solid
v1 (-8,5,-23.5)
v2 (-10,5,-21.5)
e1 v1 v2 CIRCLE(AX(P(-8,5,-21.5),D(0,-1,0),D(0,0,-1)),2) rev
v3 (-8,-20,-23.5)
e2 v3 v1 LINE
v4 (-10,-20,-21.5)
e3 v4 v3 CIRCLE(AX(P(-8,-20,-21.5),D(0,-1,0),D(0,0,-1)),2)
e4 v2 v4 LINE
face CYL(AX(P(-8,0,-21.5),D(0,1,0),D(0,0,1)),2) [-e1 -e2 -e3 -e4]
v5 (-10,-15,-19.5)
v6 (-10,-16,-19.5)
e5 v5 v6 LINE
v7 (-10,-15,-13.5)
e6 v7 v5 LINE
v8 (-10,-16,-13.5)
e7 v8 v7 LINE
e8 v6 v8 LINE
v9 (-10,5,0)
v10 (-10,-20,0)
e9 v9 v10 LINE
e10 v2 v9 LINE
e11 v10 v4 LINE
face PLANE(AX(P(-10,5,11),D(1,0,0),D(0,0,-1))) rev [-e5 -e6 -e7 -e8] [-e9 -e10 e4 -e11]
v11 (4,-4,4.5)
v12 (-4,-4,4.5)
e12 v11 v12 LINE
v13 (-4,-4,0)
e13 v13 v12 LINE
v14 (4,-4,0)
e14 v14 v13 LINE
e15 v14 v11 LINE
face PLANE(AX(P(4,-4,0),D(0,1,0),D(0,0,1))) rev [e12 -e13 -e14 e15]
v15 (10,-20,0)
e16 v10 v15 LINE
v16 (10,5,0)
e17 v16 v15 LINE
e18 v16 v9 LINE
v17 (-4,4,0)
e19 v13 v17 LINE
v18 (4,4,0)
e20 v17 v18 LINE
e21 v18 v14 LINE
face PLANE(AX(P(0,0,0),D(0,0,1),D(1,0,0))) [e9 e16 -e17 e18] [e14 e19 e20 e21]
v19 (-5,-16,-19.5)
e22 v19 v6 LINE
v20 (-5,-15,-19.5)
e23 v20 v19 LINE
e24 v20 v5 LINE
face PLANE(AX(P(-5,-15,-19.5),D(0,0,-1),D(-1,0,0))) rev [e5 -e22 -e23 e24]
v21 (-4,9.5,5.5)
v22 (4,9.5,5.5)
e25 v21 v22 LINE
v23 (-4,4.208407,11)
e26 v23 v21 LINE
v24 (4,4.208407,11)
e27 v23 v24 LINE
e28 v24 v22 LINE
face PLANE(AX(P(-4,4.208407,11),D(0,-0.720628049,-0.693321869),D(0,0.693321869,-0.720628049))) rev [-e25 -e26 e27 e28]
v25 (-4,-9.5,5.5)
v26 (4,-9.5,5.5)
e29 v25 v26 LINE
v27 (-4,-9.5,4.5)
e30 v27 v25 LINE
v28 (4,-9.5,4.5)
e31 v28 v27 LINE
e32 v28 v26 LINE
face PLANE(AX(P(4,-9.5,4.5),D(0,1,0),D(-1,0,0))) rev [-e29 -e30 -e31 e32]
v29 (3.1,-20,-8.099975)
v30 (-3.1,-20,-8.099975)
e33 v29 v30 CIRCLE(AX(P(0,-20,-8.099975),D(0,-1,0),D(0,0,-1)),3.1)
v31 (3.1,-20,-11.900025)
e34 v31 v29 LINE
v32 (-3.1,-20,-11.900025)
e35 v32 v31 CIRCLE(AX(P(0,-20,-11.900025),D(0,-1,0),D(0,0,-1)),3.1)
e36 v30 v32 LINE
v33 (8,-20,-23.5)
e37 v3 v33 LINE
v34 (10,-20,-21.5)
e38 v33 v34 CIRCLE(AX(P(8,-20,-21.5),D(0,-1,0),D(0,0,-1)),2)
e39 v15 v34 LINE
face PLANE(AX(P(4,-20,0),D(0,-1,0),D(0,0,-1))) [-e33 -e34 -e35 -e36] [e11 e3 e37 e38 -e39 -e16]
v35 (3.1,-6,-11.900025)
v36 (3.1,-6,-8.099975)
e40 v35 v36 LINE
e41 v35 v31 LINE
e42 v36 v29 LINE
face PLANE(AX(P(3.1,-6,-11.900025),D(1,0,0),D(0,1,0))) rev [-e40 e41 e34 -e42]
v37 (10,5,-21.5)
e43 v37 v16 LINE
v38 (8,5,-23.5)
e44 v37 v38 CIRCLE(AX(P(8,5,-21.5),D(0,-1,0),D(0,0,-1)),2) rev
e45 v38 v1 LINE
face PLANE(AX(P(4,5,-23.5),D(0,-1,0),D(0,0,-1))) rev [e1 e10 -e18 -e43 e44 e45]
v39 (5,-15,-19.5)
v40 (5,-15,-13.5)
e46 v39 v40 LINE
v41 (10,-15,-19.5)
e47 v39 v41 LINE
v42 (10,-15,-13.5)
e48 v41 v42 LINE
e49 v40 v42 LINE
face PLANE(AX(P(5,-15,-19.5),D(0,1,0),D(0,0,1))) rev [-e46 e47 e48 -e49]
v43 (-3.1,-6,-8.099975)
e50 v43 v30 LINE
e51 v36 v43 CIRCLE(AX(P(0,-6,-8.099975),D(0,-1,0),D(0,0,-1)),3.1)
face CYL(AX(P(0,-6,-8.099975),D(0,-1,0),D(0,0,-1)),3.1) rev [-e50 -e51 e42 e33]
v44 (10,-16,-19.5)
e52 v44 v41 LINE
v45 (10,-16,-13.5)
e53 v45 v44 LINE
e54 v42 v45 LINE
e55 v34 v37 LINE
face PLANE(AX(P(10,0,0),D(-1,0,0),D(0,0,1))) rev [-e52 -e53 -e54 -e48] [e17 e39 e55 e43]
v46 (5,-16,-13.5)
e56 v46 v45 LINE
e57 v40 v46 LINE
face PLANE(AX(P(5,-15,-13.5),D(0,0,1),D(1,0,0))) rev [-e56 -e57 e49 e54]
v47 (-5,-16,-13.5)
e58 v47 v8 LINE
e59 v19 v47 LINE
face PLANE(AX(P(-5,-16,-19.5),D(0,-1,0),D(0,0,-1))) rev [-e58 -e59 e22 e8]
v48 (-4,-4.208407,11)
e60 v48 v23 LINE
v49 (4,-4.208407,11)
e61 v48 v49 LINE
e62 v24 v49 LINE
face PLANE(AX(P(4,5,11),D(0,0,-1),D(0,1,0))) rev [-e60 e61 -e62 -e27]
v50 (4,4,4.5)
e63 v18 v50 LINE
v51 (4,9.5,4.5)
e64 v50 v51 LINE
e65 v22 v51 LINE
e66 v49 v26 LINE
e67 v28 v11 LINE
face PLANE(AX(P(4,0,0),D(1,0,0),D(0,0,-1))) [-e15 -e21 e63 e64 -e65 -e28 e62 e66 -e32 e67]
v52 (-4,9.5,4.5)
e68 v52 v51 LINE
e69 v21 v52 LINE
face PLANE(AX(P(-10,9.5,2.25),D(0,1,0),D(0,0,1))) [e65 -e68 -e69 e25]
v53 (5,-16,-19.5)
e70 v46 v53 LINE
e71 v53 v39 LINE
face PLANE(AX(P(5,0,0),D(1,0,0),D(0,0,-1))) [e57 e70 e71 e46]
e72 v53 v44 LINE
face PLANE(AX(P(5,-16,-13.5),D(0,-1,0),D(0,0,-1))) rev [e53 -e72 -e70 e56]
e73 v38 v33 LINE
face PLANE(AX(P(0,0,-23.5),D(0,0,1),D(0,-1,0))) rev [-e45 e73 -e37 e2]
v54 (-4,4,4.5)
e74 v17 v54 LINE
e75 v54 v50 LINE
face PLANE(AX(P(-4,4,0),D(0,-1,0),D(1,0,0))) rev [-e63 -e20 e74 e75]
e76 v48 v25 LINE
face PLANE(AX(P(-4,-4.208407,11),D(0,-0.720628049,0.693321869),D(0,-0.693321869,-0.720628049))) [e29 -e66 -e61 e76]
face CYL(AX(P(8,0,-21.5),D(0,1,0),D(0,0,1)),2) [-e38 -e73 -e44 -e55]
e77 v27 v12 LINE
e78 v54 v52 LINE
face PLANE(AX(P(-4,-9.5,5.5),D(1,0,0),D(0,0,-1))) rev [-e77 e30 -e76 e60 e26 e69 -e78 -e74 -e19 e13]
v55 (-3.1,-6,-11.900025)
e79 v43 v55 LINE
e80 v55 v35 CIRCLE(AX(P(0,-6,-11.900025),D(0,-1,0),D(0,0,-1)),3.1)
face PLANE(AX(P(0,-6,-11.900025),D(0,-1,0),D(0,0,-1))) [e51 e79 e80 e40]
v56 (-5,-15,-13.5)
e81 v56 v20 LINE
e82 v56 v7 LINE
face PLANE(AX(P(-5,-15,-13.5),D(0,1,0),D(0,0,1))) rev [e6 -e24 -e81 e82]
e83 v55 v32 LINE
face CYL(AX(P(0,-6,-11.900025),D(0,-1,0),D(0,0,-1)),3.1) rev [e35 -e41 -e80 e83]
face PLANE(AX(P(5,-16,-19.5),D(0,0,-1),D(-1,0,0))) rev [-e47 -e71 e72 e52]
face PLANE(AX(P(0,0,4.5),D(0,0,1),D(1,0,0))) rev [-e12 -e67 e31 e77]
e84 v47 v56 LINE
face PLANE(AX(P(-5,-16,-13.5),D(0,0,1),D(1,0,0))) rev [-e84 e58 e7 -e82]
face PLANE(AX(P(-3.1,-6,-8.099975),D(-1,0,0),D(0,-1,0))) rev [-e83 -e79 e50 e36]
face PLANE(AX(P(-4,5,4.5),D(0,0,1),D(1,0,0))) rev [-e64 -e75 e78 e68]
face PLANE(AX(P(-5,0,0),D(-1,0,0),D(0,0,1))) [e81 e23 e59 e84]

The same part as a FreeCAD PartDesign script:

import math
import FreeCAD as App
import Part
import Sketcher
from FreeCAD import Vector


def edges_at(feature, points):
    """Names of the edges that pass closest to the given points."""
    edges = feature.Shape.Edges
    near = lambda p: min(range(len(edges)), key=lambda i: edges[i].distToShape(Part.Vertex(*p))[0])
    return sorted({f"Edge{near(p) + 1}" for p in points})


def add_polygon(sketch, points):
    """Adds a closed chain of lines whose ends are joined by coincident constraints."""
    first, n = sketch.GeometryCount, len(points)
    for a, b in zip(points, points[1:] + points[:1]):
        sketch.addGeometry(Part.LineSegment(App.Vector(*a, 0), App.Vector(*b, 0)), False)
    for i in range(n):
        sketch.addConstraint(Sketcher.Constraint("Coincident", first + i, 2, first + (i + 1) % n, 1))

doc = App.newDocument("Part")
params = doc.addObject("Spreadsheet::Sheet", "Params")
for row, (alias, value) in enumerate([
    ("sketch1_height", "5.5 mm"),
    ("pad1_length", "8 mm"),
    ("sketch2_width", "14 mm"),
    ("sketch2_height", "5.5 mm"),
    ("pad2_length", "9.208407 mm"),
    ("sketch3_width", "6 mm"),
    ("sketch3_height", "5.5 mm"),
    ("pad3_length", "5.291593 mm"),
    ("sketch4_width", "14 mm"),
    ("sketch4_height", "14.5 mm"),
    ("pad4_length", "5.5 mm"),
    ("pad5_length", "4.5 mm"),
    ("sketch6_height", "5.5 mm"),
    ("pocket1_length", "8 mm"),
    ("sketch7_width", "6 mm"),
    ("sketch7_height", "19 mm"),
    ("pocket2_length", "5.5 mm"),
    ("sketch8_width", "14 mm"),
    ("sketch8_height", "19 mm"),
    ("pad6_length", "23.5 mm"),
    ("sketch9_height", "23.5 mm"),
    ("pad7_length", "10.5 mm"),
    ("sketch10_width", "6 mm"),
    ("sketch10_height", "23.5 mm"),
    ("pocket3_length", "4.5 mm"),
    ("sketch11_width", "6 mm"),
    ("sketch11_width2", "14 mm"),
    ("sketch11_height", "25 mm"),
    ("sketch11_height2", "14.5 mm"),
    ("pocket4_length", "1 mm"),
    ("sketch12_width", "14 mm"),
    ("sketch12_width2", "8 mm"),
    ("sketch12_height", "1 mm"),
    ("sketch12_height2", "25 mm"),
    ("pocket5_length", "4.5 mm"),
    ("sketch13_width", "25 mm"),
    ("sketch13_height", "23.5 mm"),
    ("pad8_length", "6 mm"),
    ("sketch14_width", "1 mm"),
    ("sketch14_height", "6 mm"),
    ("pocket6_length", "5 mm"),
    ("sketch15_radius", "3.1 mm"),
    ("pocket7_length", "14 mm"),
    ("sketch16_width", "1 mm"),
    ("sketch16_height", "6 mm"),
    ("pocket8_length", "5 mm"),
    ("fillet_radius", "2 mm"),
], start=1):
    params.set(f"A{row}", alias)
    params.set(f"B{row}", "=" + value)
    params.setAlias(f"B{row}", alias)

body = doc.addObject("PartDesign::Body", "Body")

sketch1 = body.newObject("Sketcher::SketchObject", "Sketch")
sketch1.AttachmentSupport = (doc.getObject("YZ_Plane"), [""])
sketch1.MapMode = "FlatFace"
sketch1.AttachmentOffset = App.Placement(Vector(0, 0, 4), App.Rotation())
add_polygon(sketch1, [(-9.5, 5.5), (-4.208407, 5.5), (-4.208407, 11)])
sketch1.addConstraint([
    Sketcher.Constraint("Horizontal", 0),
    Sketcher.Constraint("Vertical", 1),
    Sketcher.Constraint("DistanceY", 1, 1, 1, 2, 5.5),
    Sketcher.Constraint("DistanceY", -1, 1, 1, 2, 11.0),
    Sketcher.Constraint("DistanceX", 2, 2, -1, 1, 9.5),
    Sketcher.Constraint("Distance", 2, 7.632231),
])
sketch1.setExpression("Constraints[5]", "Params.sketch1_height")
pad1 = body.newObject("PartDesign::Pad", "Pad")
pad1.Profile = sketch1
pad1.setExpression("Length", "Params.pad1_length")
pad1.Reversed = True

sketch2 = body.newObject("Sketcher::SketchObject", "Sketch001")
sketch2.AttachmentSupport = (doc.getObject("XZ_Plane"), [""])
sketch2.MapMode = "FlatFace"
sketch2.AttachmentOffset = App.Placement(Vector(0, 0, 4.208407), App.Rotation())
add_polygon(sketch2, [(4, 11), (4, 5.5), (-10, 5.5), (-10, 11)])
sketch2.addConstraint([
    Sketcher.Constraint("Vertical", 0),
    Sketcher.Constraint("Horizontal", 1),
    Sketcher.Constraint("Vertical", 2),
    Sketcher.Constraint("Horizontal", 3),
    Sketcher.Constraint("DistanceX", 1, 2, 1, 1, 14.0),
    Sketcher.Constraint("DistanceY", 0, 2, 0, 1, 5.5),
    Sketcher.Constraint("DistanceX", -1, 1, 0, 2, 4.0),
    Sketcher.Constraint("DistanceY", -1, 1, 2, 2, 11.0),
])
sketch2.setExpression("Constraints[8]", "Params.sketch2_width")
sketch2.setExpression("Constraints[9]", "Params.sketch2_height")
pad2 = body.newObject("PartDesign::Pad", "Pad001")
pad2.Profile = sketch2
pad2.setExpression("Length", "Params.pad2_length")
pad2.Reversed = True

sketch3 = body.newObject("Sketcher::SketchObject", "Sketch002")
sketch3.AttachmentSupport = (doc.getObject("XZ_Plane"), [""])
sketch3.MapMode = "FlatFace"
sketch3.AttachmentOffset = App.Placement(Vector(0, 0, 4.208407), App.Rotation())
add_polygon(sketch3, [(-10, 11), (-10, 5.5), (-4, 5.5), (-4, 11)])
sketch3.addConstraint([
    Sketcher.Constraint("Vertical", 0),
    Sketcher.Constraint("Horizontal", 1),
    Sketcher.Constraint("Vertical", 2),
    Sketcher.Constraint("Horizontal", 3),
    Sketcher.Constraint("DistanceX", 1, 1, 1, 2, 6.0),
    Sketcher.Constraint("DistanceY", 0, 2, 0, 1, 5.5),
    Sketcher.Constraint("DistanceX", 0, 2, -1, 1, 10.0),
    Sketcher.Constraint("DistanceY", -1, 1, 2, 2, 11.0),
])
sketch3.setExpression("Constraints[8]", "Params.sketch3_width")
sketch3.setExpression("Constraints[9]", "Params.sketch3_height")
pad3 = body.newObject("PartDesign::Pad", "Pad002")
pad3.Profile = sketch3
pad3.setExpression("Length", "Params.pad3_length")

sketch4 = body.newObject("Sketcher::SketchObject", "Sketch003")
sketch4.AttachmentSupport = (doc.getObject("XY_Plane"), [""])
sketch4.MapMode = "FlatFace"
sketch4.AttachmentOffset = App.Placement(Vector(0, 0, 5.5), App.Rotation())
add_polygon(sketch4, [(4, 5), (4, -9.5), (-10, -9.5), (-10, 5)])
sketch4.addConstraint([
    Sketcher.Constraint("Vertical", 0),
    Sketcher.Constraint("Horizontal", 1),
    Sketcher.Constraint("Vertical", 2),
    Sketcher.Constraint("Horizontal", 3),
    Sketcher.Constraint("DistanceX", 1, 2, 1, 1, 14.0),
    Sketcher.Constraint("DistanceY", 0, 2, 0, 1, 14.5),
    Sketcher.Constraint("DistanceX", -1, 1, 0, 2, 4.0),
    Sketcher.Constraint("DistanceY", -1, 1, 2, 2, 5.0),
])
sketch4.setExpression("Constraints[8]", "Params.sketch4_width")
sketch4.setExpression("Constraints[9]", "Params.sketch4_height")
pad4 = body.newObject("PartDesign::Pad", "Pad003")
pad4.Profile = sketch4
pad4.setExpression("Length", "Params.pad4_length")
pad4.Reversed = True

sketch5 = body.newObject("Sketcher::SketchObject", "Sketch004")
sketch5.AttachmentSupport = (doc.getObject("XZ_Plane"), [""])
sketch5.MapMode = "FlatFace"
sketch5.AttachmentOffset = App.Placement(Vector(0, 0, -5), App.Rotation())
sketch5.addGeometry([
    Part.LineSegment(Vector(4, 0, 0), Vector(-10, 0, 0)),
    Part.BSplineCurve([Vector(-10, 11, 0), Vector(-10, 7.333333, 0), Vector(-10, 3.666667, 0), Vector(-10, 0, 0)], [4, 4], [0, 1.999999999], False, 3, [1, 1, 1, 1], False),
    Part.LineSegment(Vector(-10, 11, 0), Vector(4, 11, 0)),
    Part.LineSegment(Vector(4, 11, 0), Vector(4, 4.5, 0)),
    Part.BSplineCurve([Vector(4, 4.5, 0), Vector(4, 3, 0), Vector(4, 1.5, 0), Vector(4, 0, 0)], [4, 4], [0, 1], False, 3, [1, 1, 1, 1], False),
], False)
sketch5.addConstraint([
    Sketcher.Constraint("Block", 1),
    Sketcher.Constraint("Block", 4),
    Sketcher.Constraint("Coincident", 0, 2, 1, 2),
    Sketcher.Constraint("Coincident", 1, 1, 2, 1),
    Sketcher.Constraint("Coincident", 2, 2, 3, 1),
    Sketcher.Constraint("Coincident", 3, 2, 4, 1),
    Sketcher.Constraint("Coincident", 4, 2, 0, 1),
    Sketcher.Constraint("Horizontal", 2),
    Sketcher.Constraint("Vertical", 3),
])
pad5 = body.newObject("PartDesign::Pad", "Pad004")
pad5.Profile = sketch5
pad5.setExpression("Length", "Params.pad5_length")
pad5.Reversed = True

sketch6 = body.newObject("Sketcher::SketchObject", "Sketch005")
sketch6.AttachmentSupport = (doc.getObject("YZ_Plane"), [""])
sketch6.MapMode = "FlatFace"
sketch6.AttachmentOffset = App.Placement(Vector(0, 0, 4), App.Rotation())
add_polygon(sketch6, [(4.208407, 11), (9.5, 5.5), (9.5, 11)])
sketch6.addConstraint([
    Sketcher.Constraint("Vertical", 1),
    Sketcher.Constraint("Horizontal", 2),
    Sketcher.Constraint("DistanceY", 1, 1, 1, 2, 5.5),
    Sketcher.Constraint("DistanceY", -1, 1, 1, 2, 11.0),
    Sketcher.Constraint("DistanceX", -1, 1, 0, 2, 9.5),
    Sketcher.Constraint("Distance", 0, 7.632231),
])
sketch6.setExpression("Constraints[5]", "Params.sketch6_height")
pocket1 = body.newObject("PartDesign::Pocket", "Pocket")
pocket1.Profile = sketch6
pocket1.setExpression("Length", "Params.pocket1_length")

sketch7 = body.newObject("Sketcher::SketchObject", "Sketch006")
sketch7.AttachmentSupport = (doc.getObject("XY_Plane"), [""])
sketch7.MapMode = "FlatFace"
sketch7.AttachmentOffset = App.Placement(Vector(0, 0, 11), App.Rotation())
sketch7.addGeometry([
    Part.LineSegment(Vector(-10, -9.5, 0), Vector(-4, -9.5, 0)),
    Part.LineSegment(Vector(-4, -9.5, 0), Vector(-4, 9.5, 0)),
    Part.LineSegment(Vector(-4, 9.5, 0), Vector(-10, 9.5, 0)),
    Part.BSplineCurve([Vector(-10, 9.5, 0), Vector(-10, 8, 0), Vector(-10, 6.5, 0), Vector(-10, 5, 0)], [4, 4], [0, 1], False, 3, [1, 1, 1, 1], False),
    Part.LineSegment(Vector(-10, 5, 0), Vector(-10, -9.5, 0)),
], False)
sketch7.addConstraint([
    Sketcher.Constraint("Block", 3),
    Sketcher.Constraint("Coincident", 0, 2, 1, 1),
    Sketcher.Constraint("Coincident", 1, 2, 2, 1),
    Sketcher.Constraint("Coincident", 2, 2, 3, 1),
    Sketcher.Constraint("Coincident", 3, 2, 4, 1),
    Sketcher.Constraint("Coincident", 4, 2, 0, 1),
    Sketcher.Constraint("Horizontal", 0),
    Sketcher.Constraint("Vertical", 1),
    Sketcher.Constraint("Horizontal", 2),
    Sketcher.Constraint("Vertical", 4),
    Sketcher.Constraint("DistanceX", 0, 1, 0, 2, 6.0),
    Sketcher.Constraint("DistanceY", 1, 1, 1, 2, 19.0),
])
sketch7.setExpression("Constraints[10]", "Params.sketch7_width")
sketch7.setExpression("Constraints[11]", "Params.sketch7_height")
pocket2 = body.newObject("PartDesign::Pocket", "Pocket001")
pocket2.Profile = sketch7
pocket2.setExpression("Length", "Params.pocket2_length")

sketch8 = body.newObject("Sketcher::SketchObject", "Sketch007")
sketch8.AttachmentSupport = (doc.getObject("XY_Plane"), [""])
sketch8.MapMode = "FlatFace"
add_polygon(sketch8, [(4, 9.5), (4, -9.5), (-10, -9.5), (-10, 9.5)])
sketch8.addConstraint([
    Sketcher.Constraint("Vertical", 0),
    Sketcher.Constraint("Horizontal", 1),
    Sketcher.Constraint("Vertical", 2),
    Sketcher.Constraint("Horizontal", 3),
    Sketcher.Constraint("DistanceX", 1, 2, 1, 1, 14.0),
    Sketcher.Constraint("DistanceY", 0, 2, 0, 1, 19.0),
    Sketcher.Constraint("DistanceX", -1, 1, 0, 2, 4.0),
    Sketcher.Constraint("DistanceY", 0, 2, -1, 1, 9.5),
])
sketch8.setExpression("Constraints[8]", "Params.sketch8_width")
sketch8.setExpression("Constraints[9]", "Params.sketch8_height")
pad6 = body.newObject("PartDesign::Pad", "Pad005")
pad6.Profile = sketch8
pad6.setExpression("Length", "Params.pad6_length")
pad6.Reversed = True

sketch9 = body.newObject("Sketcher::SketchObject", "Sketch008")
sketch9.AttachmentSupport = (doc.getObject("XZ_Plane"), [""])
sketch9.MapMode = "FlatFace"
sketch9.AttachmentOffset = App.Placement(Vector(0, 0, 9.5), App.Rotation())
sketch9.addGeometry([
    Part.LineSegment(Vector(-10, -23.5, 0), Vector(4, -23.5, 0)),
    Part.LineSegment(Vector(4, -23.5, 0), Vector(4, 0, 0)),
    Part.BSplineCurve([Vector(4, 5.5, 0), Vector(4, 3.666667, 0), Vector(4, 1.833333, 0), Vector(4, 0, 0)], [4, 4], [0, 5.500000005], False, 3, [1, 1, 1, 1], False),
    Part.LineSegment(Vector(4, 5.5, 0), Vector(-10, 5.5, 0)),
    Part.BSplineCurve([Vector(-10, 5.5, 0), Vector(-10, 3.666667, 0), Vector(-10, 1.833333, 0), Vector(-10, 0, 0)], [4, 4], [0, 5.500000005], False, 3, [1, 1, 1, 1], False),
    Part.LineSegment(Vector(-10, 0, 0), Vector(-10, -23.5, 0)),
], False)
sketch9.addConstraint([
    Sketcher.Constraint("Block", 2),
    Sketcher.Constraint("Block", 4),
    Sketcher.Constraint("Coincident", 0, 2, 1, 1),
    Sketcher.Constraint("Coincident", 1, 2, 2, 2),
    Sketcher.Constraint("Coincident", 2, 1, 3, 1),
    Sketcher.Constraint("Coincident", 3, 2, 4, 1),
    Sketcher.Constraint("Coincident", 4, 2, 5, 1),
    Sketcher.Constraint("Coincident", 5, 2, 0, 1),
    Sketcher.Constraint("Horizontal", 0),
    Sketcher.Constraint("Vertical", 1),
    Sketcher.Constraint("Vertical", 5),
    Sketcher.Constraint("DistanceY", 1, 1, 1, 2, 23.5),
])
sketch9.setExpression("Constraints[11]", "Params.sketch9_height")
pad7 = body.newObject("PartDesign::Pad", "Pad006")
pad7.Profile = sketch9
pad7.setExpression("Length", "Params.pad7_length")

sketch10 = body.newObject("Sketcher::SketchObject", "Sketch009")
sketch10.AttachmentSupport = (doc.getObject("XZ_Plane"), [""])
sketch10.MapMode = "FlatFace"
sketch10.AttachmentOffset = App.Placement(Vector(0, 0, -9.5), App.Rotation())
sketch10.addGeometry([
    Part.LineSegment(Vector(-10, -23.5, 0), Vector(-10, 0, 0)),
    Part.BSplineCurve([Vector(-10, 5.5, 0), Vector(-10, 3.666667, 0), Vector(-10, 1.833333, 0), Vector(-10, 0, 0)], [4, 4], [0, 5.500000005], False, 3, [1, 1, 1, 1], False),
    Part.LineSegment(Vector(-10, 5.5, 0), Vector(-4, 5.5, 0)),
    Part.LineSegment(Vector(-4, 5.5, 0), Vector(-4, 4.5, 0)),
    Part.LineSegment(Vector(-4, 4.5, 0), Vector(4, 4.5, 0)),
    Part.BSplineCurve([Vector(4, 4.5, 0), Vector(4, 3, 0), Vector(4, 1.5, 0), Vector(4, 0, 0)], [4, 4], [0, 1], False, 3, [1, 1, 1, 1], False),
    Part.LineSegment(Vector(4, 0, 0), Vector(4, -23.5, 0)),
    Part.LineSegment(Vector(4, -23.5, 0), Vector(-10, -23.5, 0)),
], False)
sketch10.addConstraint([
    Sketcher.Constraint("Block", 1),
    Sketcher.Constraint("Block", 5),
    Sketcher.Constraint("Coincident", 0, 2, 1, 2),
    Sketcher.Constraint("Coincident", 1, 1, 2, 1),
    Sketcher.Constraint("Coincident", 2, 2, 3, 1),
    Sketcher.Constraint("Coincident", 3, 2, 4, 1),
    Sketcher.Constraint("Coincident", 4, 2, 5, 1),
    Sketcher.Constraint("Coincident", 5, 2, 6, 1),
    Sketcher.Constraint("Coincident", 6, 2, 7, 1),
    Sketcher.Constraint("Coincident", 7, 2, 0, 1),
    Sketcher.Constraint("Vertical", 0),
    Sketcher.Constraint("Horizontal", 2),
    Sketcher.Constraint("Vertical", 3),
    Sketcher.Constraint("Horizontal", 4),
    Sketcher.Constraint("Vertical", 6),
    Sketcher.Constraint("Horizontal", 7),
    Sketcher.Constraint("DistanceX", 2, 1, 2, 2, 6.0),
    Sketcher.Constraint("DistanceY", 0, 1, 0, 2, 23.5),
])
sketch10.setExpression("Constraints[16]", "Params.sketch10_width")
sketch10.setExpression("Constraints[17]", "Params.sketch10_height")
pocket3 = body.newObject("PartDesign::Pocket", "Pocket002")
pocket3.Profile = sketch10
pocket3.setExpression("Length", "Params.pocket3_length")
pocket3.Reversed = True

sketch11 = body.newObject("Sketcher::SketchObject", "Sketch010")
sketch11.AttachmentSupport = (doc.getObject("XY_Plane"), [""])
sketch11.MapMode = "FlatFace"
sketch11.AttachmentOffset = App.Placement(Vector(0, 0, 5.5), App.Rotation())
add_polygon(sketch11, [(-4, -9.5), (-4, 5), (-10, 5), (-10, -20), (4, -20), (4, -9.5)])
sketch11.addConstraint([
    Sketcher.Constraint("Vertical", 0),
    Sketcher.Constraint("Horizontal", 1),
    Sketcher.Constraint("Vertical", 2),
    Sketcher.Constraint("Horizontal", 3),
    Sketcher.Constraint("Vertical", 4),
    Sketcher.Constraint("Horizontal", 5),
    Sketcher.Constraint("DistanceX", 1, 2, 1, 1, 6.0),
    Sketcher.Constraint("DistanceX", 3, 1, 3, 2, 14.0),
    Sketcher.Constraint("DistanceY", 2, 2, 2, 1, 25.0),
    Sketcher.Constraint("DistanceY", 0, 1, 0, 2, 14.5),
    Sketcher.Constraint("DistanceX", 0, 2, -1, 1, 4.0),
    Sketcher.Constraint("DistanceY", -1, 1, 0, 2, 5.0),
])
sketch11.setExpression("Constraints[12]", "Params.sketch11_width")
sketch11.setExpression("Constraints[13]", "Params.sketch11_width2")
sketch11.setExpression("Constraints[14]", "Params.sketch11_height")
sketch11.setExpression("Constraints[15]", "Params.sketch11_height2")
pocket4 = body.newObject("PartDesign::Pocket", "Pocket003")
pocket4.Profile = sketch11
pocket4.setExpression("Length", "Params.pocket4_length")

sketch12 = body.newObject("Sketcher::SketchObject", "Sketch011")
sketch12.AttachmentSupport = (doc.getObject("XY_Plane"), [""])
sketch12.MapMode = "FlatFace"
sketch12.AttachmentOffset = App.Placement(Vector(0, 0, 4.5), App.Rotation())
add_polygon(sketch12, [(4, 4), (4, 5), (-10, 5), (-10, -20), (4, -20), (4, -4), (-4, -4), (-4, 4)])
sketch12.addConstraint([
    Sketcher.Constraint("Vertical", 0),
    Sketcher.Constraint("Horizontal", 1),
    Sketcher.Constraint("Vertical", 2),
    Sketcher.Constraint("Horizontal", 3),
    Sketcher.Constraint("Vertical", 4),
    Sketcher.Constraint("Horizontal", 5),
    Sketcher.Constraint("Vertical", 6),
    Sketcher.Constraint("Horizontal", 7),
    Sketcher.Constraint("Symmetric", 4, 2, 6, 2, -1, 1),
    Sketcher.Constraint("Vertical", 0, 2, 3, 2),
    Sketcher.Constraint("Equal", 7, 6),
    Sketcher.Constraint("DistanceX", 1, 2, 1, 1, 14.0),
    Sketcher.Constraint("DistanceX", 5, 2, 5, 1, 8.0),
    Sketcher.Constraint("DistanceY", 0, 1, 0, 2, 1.0),
    Sketcher.Constraint("DistanceY", 2, 2, 2, 1, 25.0),
])
sketch12.setExpression("Constraints[19]", "Params.sketch12_width")
sketch12.setExpression("Constraints[20]", "Params.sketch12_width2")
sketch12.setExpression("Constraints[21]", "Params.sketch12_height")
sketch12.setExpression("Constraints[22]", "Params.sketch12_height2")
pocket5 = body.newObject("PartDesign::Pocket", "Pocket004")
pocket5.Profile = sketch12
pocket5.setExpression("Length", "Params.pocket5_length")

sketch13 = body.newObject("Sketcher::SketchObject", "Sketch012")
sketch13.AttachmentSupport = (doc.getObject("YZ_Plane"), [""])
sketch13.MapMode = "FlatFace"
sketch13.AttachmentOffset = App.Placement(Vector(0, 0, 4), App.Rotation())
add_polygon(sketch13, [(5, 0), (-20, 0), (-20, -23.5), (5, -23.5)])
sketch13.addConstraint([
    Sketcher.Constraint("Horizontal", 0),
    Sketcher.Constraint("Vertical", 1),
    Sketcher.Constraint("Horizontal", 2),
    Sketcher.Constraint("Vertical", 3),
    Sketcher.Constraint("PointOnObject", 0, 2, -1),
    Sketcher.Constraint("DistanceX", 0, 2, 0, 1, 25.0),
    Sketcher.Constraint("DistanceY", 1, 2, 1, 1, 23.5),
    Sketcher.Constraint("DistanceX", 0, 2, -1, 1, 20.0),
])
sketch13.setExpression("Constraints[9]", "Params.sketch13_width")
sketch13.setExpression("Constraints[10]", "Params.sketch13_height")
pad8 = body.newObject("PartDesign::Pad", "Pad007")
pad8.Profile = sketch13
pad8.setExpression("Length", "Params.pad8_length")

sketch14 = body.newObject("Sketcher::SketchObject", "Sketch013")
sketch14.AttachmentSupport = (doc.getObject("YZ_Plane"), [""])
sketch14.MapMode = "FlatFace"
sketch14.AttachmentOffset = App.Placement(Vector(0, 0, -10), App.Rotation())
add_polygon(sketch14, [(-15, -19.5), (-16, -19.5), (-16, -13.5), (-15, -13.5)])
sketch14.addConstraint([
    Sketcher.Constraint("Horizontal", 0),
    Sketcher.Constraint("Vertical", 1),
    Sketcher.Constraint("Horizontal", 2),
    Sketcher.Constraint("Vertical", 3),
    Sketcher.Constraint("DistanceX", 0, 2, 0, 1, 1.0),
    Sketcher.Constraint("DistanceY", 1, 1, 1, 2, 6.0),
    Sketcher.Constraint("DistanceX", 0, 2, -1, 1, 16.0),
    Sketcher.Constraint("DistanceY", 0, 2, -1, 1, 19.5),
])
sketch14.setExpression("Constraints[8]", "Params.sketch14_width")
sketch14.setExpression("Constraints[9]", "Params.sketch14_height")
pocket6 = body.newObject("PartDesign::Pocket", "Pocket005")
pocket6.Profile = sketch14
pocket6.setExpression("Length", "Params.pocket6_length")
pocket6.Reversed = True

sketch15 = body.newObject("Sketcher::SketchObject", "Sketch014")
sketch15.AttachmentSupport = (doc.getObject("XZ_Plane"), [""])
sketch15.MapMode = "FlatFace"
sketch15.AttachmentOffset = App.Placement(Vector(0, 0, 20), App.Rotation())
sketch15.addGeometry([
    Part.LineSegment(Vector(3.1, -11.900025, 0), Vector(3.1, -8.099975, 0)),
    Part.ArcOfCircle(Part.Circle(Vector(0, -8.099975, 0), Vector(0, 0, 1), 3.1), math.radians(0), math.radians(180)),
    Part.LineSegment(Vector(-3.1, -8.099975, 0), Vector(-3.1, -11.900025, 0)),
    Part.ArcOfCircle(Part.Circle(Vector(0, -11.900025, 0), Vector(0, 0, 1), 3.1), math.radians(180), math.radians(360)),
], False)
sketch15.addConstraint([
    Sketcher.Constraint("Tangent", 0, 2, 1, 1),
    Sketcher.Constraint("Tangent", 1, 2, 2, 1),
    Sketcher.Constraint("Tangent", 2, 2, 3, 1),
    Sketcher.Constraint("Tangent", 3, 2, 0, 1),
    Sketcher.Constraint("Vertical", 0),
    Sketcher.Constraint("Vertical", 2),
    Sketcher.Constraint("PointOnObject", 1, 3, -2),
    Sketcher.Constraint("Radius", 1, 3.1),
    Sketcher.Constraint("DistanceY", 0, 1, 0, 2, 3.80005),
    Sketcher.Constraint("DistanceY", 1, 3, -1, 1, 8.099975),
])
sketch15.setExpression("Constraints[7]", "Params.sketch15_radius")
pocket7 = body.newObject("PartDesign::Pocket", "Pocket006")
pocket7.Profile = sketch15
pocket7.setExpression("Length", "Params.pocket7_length")

sketch16 = body.newObject("Sketcher::SketchObject", "Sketch015")
sketch16.AttachmentSupport = (doc.getObject("YZ_Plane"), [""])
sketch16.MapMode = "FlatFace"
sketch16.AttachmentOffset = App.Placement(Vector(0, 0, 10), App.Rotation())
add_polygon(sketch16, [(-15, -13.5), (-16, -13.5), (-16, -19.5), (-15, -19.5)])
sketch16.addConstraint([
    Sketcher.Constraint("Horizontal", 0),
    Sketcher.Constraint("Vertical", 1),
    Sketcher.Constraint("Horizontal", 2),
    Sketcher.Constraint("Vertical", 3),
    Sketcher.Constraint("DistanceX", 0, 2, 0, 1, 1.0),
    Sketcher.Constraint("DistanceY", 1, 2, 1, 1, 6.0),
    Sketcher.Constraint("DistanceX", 0, 2, -1, 1, 16.0),
    Sketcher.Constraint("DistanceY", 0, 2, -1, 1, 13.5),
])
sketch16.setExpression("Constraints[8]", "Params.sketch16_width")
sketch16.setExpression("Constraints[9]", "Params.sketch16_height")
pocket8 = body.newObject("PartDesign::Pocket", "Pocket007")
pocket8.Profile = sketch16
pocket8.setExpression("Length", "Params.pocket8_length")
doc.recompute()

fillet = body.newObject("PartDesign::Fillet", "Fillet")
fillet.Base = (pocket8, edges_at(pocket8, [(-10, -2.25, -23.5), (10, -7.5, -23.5)]))
fillet.setExpression("Radius", "Params.fillet_radius")

doc.recompute()
